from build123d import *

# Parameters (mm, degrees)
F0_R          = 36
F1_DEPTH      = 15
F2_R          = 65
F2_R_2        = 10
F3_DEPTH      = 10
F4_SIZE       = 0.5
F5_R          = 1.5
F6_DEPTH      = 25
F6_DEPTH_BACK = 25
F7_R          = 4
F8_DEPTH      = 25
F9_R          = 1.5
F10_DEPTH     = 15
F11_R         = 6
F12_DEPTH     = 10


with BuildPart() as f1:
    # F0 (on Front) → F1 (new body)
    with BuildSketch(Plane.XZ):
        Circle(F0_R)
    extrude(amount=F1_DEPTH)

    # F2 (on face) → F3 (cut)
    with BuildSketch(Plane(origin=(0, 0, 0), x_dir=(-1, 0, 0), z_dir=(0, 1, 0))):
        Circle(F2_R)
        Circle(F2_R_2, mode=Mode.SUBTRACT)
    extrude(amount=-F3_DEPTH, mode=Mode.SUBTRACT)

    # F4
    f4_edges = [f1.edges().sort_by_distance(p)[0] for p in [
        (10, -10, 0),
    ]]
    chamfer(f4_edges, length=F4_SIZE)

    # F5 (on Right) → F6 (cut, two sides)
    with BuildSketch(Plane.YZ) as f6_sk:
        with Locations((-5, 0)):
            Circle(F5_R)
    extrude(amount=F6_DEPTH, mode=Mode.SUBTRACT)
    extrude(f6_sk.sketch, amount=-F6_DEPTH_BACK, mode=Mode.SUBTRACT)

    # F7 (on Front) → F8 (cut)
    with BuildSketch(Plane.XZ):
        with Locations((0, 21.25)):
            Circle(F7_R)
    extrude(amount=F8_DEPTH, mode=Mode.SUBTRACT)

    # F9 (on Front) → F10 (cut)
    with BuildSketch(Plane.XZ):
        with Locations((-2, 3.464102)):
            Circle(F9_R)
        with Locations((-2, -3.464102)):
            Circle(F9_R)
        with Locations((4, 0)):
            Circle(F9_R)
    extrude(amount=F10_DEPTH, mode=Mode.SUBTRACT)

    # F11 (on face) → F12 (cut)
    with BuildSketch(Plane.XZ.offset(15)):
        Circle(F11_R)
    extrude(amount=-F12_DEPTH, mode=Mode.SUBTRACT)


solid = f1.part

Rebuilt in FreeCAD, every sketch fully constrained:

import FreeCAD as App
import Part
import Sketcher
from FreeCAD import Vector
Q = App.Units.Quantity


def edges_at(feature, points):
    """Names of the edges that pass closest to the given points."""
    edges = feature.Shape.Edges
    near = lambda p: min(range(len(edges)), key=lambda i: edges[i].distToShape(Part.Vertex(*p))[0])
    return sorted({f"Edge{near(p) + 1}" for p in points})

doc = App.newDocument("Part")
params = doc.addObject("Spreadsheet::Sheet", "Params")
for row, (alias, value) in enumerate([
    ("sketch1_diameter", "72 mm"),
    ("pad1_length", "15 mm"),
    ("sketch2_diameter", "130 mm"),
    ("sketch2_diameter2", "20 mm"),
    ("pocket1_length", "10 mm"),
    ("chamfer_size", "0.5 mm"),
    ("sketch3_diameter", "3 mm"),
    ("sketch4_diameter", "8 mm"),
    ("pocket3_length", "25 mm"),
    ("sketch5_diameter", "3 mm"),
    ("pocket4_length", "15 mm"),
    ("sketch6_diameter", "12 mm"),
    ("pocket5_length", "10 mm"),
], start=1):
    params.set(f"A{row}", alias)
    params.set(f"B{row}", "=" + value)
    params.setAlias(f"B{row}", alias)

body = doc.addObject("PartDesign::Body", "Body")

# Sketch on XZ plane
sketch1 = body.newObject("Sketcher::SketchObject", "Sketch")
sketch1.AttachmentSupport = (doc.getObject("XZ_Plane"), [""])
sketch1.MapMode = "FlatFace"
sketch1.addGeometry(Part.Circle(Vector(0, 0, 0), Vector(0, 0, 1), 36), False)
sketch1.addConstraint(Sketcher.Constraint("Coincident", 0, 3, -1, 1))
sketch1.addConstraint(Sketcher.Constraint("Diameter", 0, Q("72 mm")))
sketch1.setExpression("Constraints[1]", "Params.sketch1_diameter")
pad1 = body.newObject("PartDesign::Pad", "Pad")
pad1.Profile = sketch1
pad1.setExpression("Length", "Params.pad1_length")

# Sketch on XZ plane
sketch2 = body.newObject("Sketcher::SketchObject", "Sketch001")
sketch2.AttachmentSupport = (doc.getObject("XZ_Plane"), [""])
sketch2.MapMode = "FlatFace"
sketch2.addGeometry(Part.Circle(Vector(0, 0, 0), Vector(0, 0, 1), 65), False)
sketch2.addGeometry(Part.Circle(Vector(0, 0, 0), Vector(0, 0, 1), 10), False)
sketch2.addConstraint(Sketcher.Constraint("Coincident", 0, 3, -1, 1))
sketch2.addConstraint(Sketcher.Constraint("Coincident", 1, 3, -1, 1))
sketch2.addConstraint(Sketcher.Constraint("Diameter", 0, Q("130 mm")))
sketch2.addConstraint(Sketcher.Constraint("Diameter", 1, Q("20 mm")))
sketch2.setExpression("Constraints[2]", "Params.sketch2_diameter")
sketch2.setExpression("Constraints[3]", "Params.sketch2_diameter2")
pocket1 = body.newObject("PartDesign::Pocket", "Pocket")
pocket1.Profile = sketch2
pocket1.setExpression("Length", "Params.pocket1_length")
pocket1.Reversed = True
doc.recompute()

chamfer = body.newObject("PartDesign::Chamfer", "Chamfer")
chamfer.Base = (pocket1, edges_at(pocket1, [(10, -10, 0)]))
chamfer.setExpression("Size", "Params.chamfer_size")

# Sketch on YZ plane
sketch3 = body.newObject("Sketcher::SketchObject", "Sketch002")
sketch3.AttachmentSupport = (doc.getObject("YZ_Plane"), [""])
sketch3.MapMode = "FlatFace"
sketch3.addGeometry(Part.Circle(Vector(-5, 0, 0), Vector(0, 0, 1), 1.5), False)
sketch3.addConstraint(Sketcher.Constraint("PointOnObject", 0, 3, -1))
sketch3.addConstraint(Sketcher.Constraint("Diameter", 0, Q("3 mm")))
sketch3.addConstraint(Sketcher.Constraint("DistanceX", 0, 3, -1, 1, Q("5 mm")))
sketch3.setExpression("Constraints[1]", "Params.sketch3_diameter")
pocket2 = body.newObject("PartDesign::Pocket", "Pocket001")
pocket2.Profile = sketch3
pocket2.Type = "ThroughAll"
pocket2.Midplane = True

# Sketch on XZ plane
sketch4 = body.newObject("Sketcher::SketchObject", "Sketch003")
sketch4.AttachmentSupport = (doc.getObject("XZ_Plane"), [""])
sketch4.MapMode = "FlatFace"
sketch4.addGeometry(Part.Circle(Vector(0, 21.2, 0), Vector(0, 0, 1), 4), False)
sketch4.addConstraint(Sketcher.Constraint("PointOnObject", 0, 3, -2))
sketch4.addConstraint(Sketcher.Constraint("Diameter", 0, Q("8 mm")))
sketch4.addConstraint(Sketcher.Constraint("DistanceY", -1, 1, 0, 3, Q("21.25 mm")))
sketch4.setExpression("Constraints[1]", "Params.sketch4_diameter")
pocket3 = body.newObject("PartDesign::Pocket", "Pocket002")
pocket3.Profile = sketch4
pocket3.setExpression("Length", "Params.pocket3_length")
pocket3.Reversed = True

# Sketch on XZ plane
sketch5 = body.newObject("Sketcher::SketchObject", "Sketch004")
sketch5.AttachmentSupport = (doc.getObject("XZ_Plane"), [""])
sketch5.MapMode = "FlatFace"
sketch5.addGeometry(Part.Circle(Vector(-2, 3.5, 0), Vector(0, 0, 1), 1.5), False)
sketch5.addGeometry(Part.Circle(Vector(-2, -3.5, 0), Vector(0, 0, 1), 1.5), False)
sketch5.addGeometry(Part.Circle(Vector(4, 0, 0), Vector(0, 0, 1), 1.5), False)
sketch5.addConstraint(Sketcher.Constraint("Equal", 0, 1))
sketch5.addConstraint(Sketcher.Constraint("Equal", 1, 2))
sketch5.addConstraint(Sketcher.Constraint("Symmetric", 0, 3, 1, 3, -1))
sketch5.addConstraint(Sketcher.Constraint("PointOnObject", 2, 3, -1))
sketch5.addConstraint(Sketcher.Constraint("Diameter", 0, Q("3 mm")))
sketch5.addConstraint(Sketcher.Constraint("DistanceX", 0, 3, -1, 1, Q("2 mm")))
sketch5.addConstraint(Sketcher.Constraint("DistanceX", -1, 1, 2, 3, Q("4 mm")))
sketch5.addConstraint(Sketcher.Constraint("DistanceY", -1, 1, 0, 3, Q("3.464102 mm")))
sketch5.setExpression("Constraints[4]", "Params.sketch5_diameter")
pocket4 = body.newObject("PartDesign::Pocket", "Pocket003")
pocket4.Profile = sketch5
pocket4.setExpression("Length", "Params.pocket4_length")
pocket4.Reversed = True

# Sketch on XZ plane
sketch6 = body.newObject("Sketcher::SketchObject", "Sketch005")
sketch6.AttachmentSupport = (doc.getObject("XZ_Plane"), [""])
sketch6.MapMode = "FlatFace"
sketch6.AttachmentOffset = App.Placement(Vector(0, 0, 15), App.Rotation())
sketch6.addGeometry(Part.Circle(Vector(0, 0, 0), Vector(0, 0, 1), 6), False)
sketch6.addConstraint(Sketcher.Constraint("Coincident", 0, 3, -1, 1))
sketch6.addConstraint(Sketcher.Constraint("Diameter", 0, Q("12 mm")))
sketch6.setExpression("Constraints[1]", "Params.sketch6_diameter")
pocket5 = body.newObject("PartDesign::Pocket", "Pocket004")
pocket5.Profile = sketch6
pocket5.setExpression("Length", "Params.pocket5_length")

doc.recompute()
